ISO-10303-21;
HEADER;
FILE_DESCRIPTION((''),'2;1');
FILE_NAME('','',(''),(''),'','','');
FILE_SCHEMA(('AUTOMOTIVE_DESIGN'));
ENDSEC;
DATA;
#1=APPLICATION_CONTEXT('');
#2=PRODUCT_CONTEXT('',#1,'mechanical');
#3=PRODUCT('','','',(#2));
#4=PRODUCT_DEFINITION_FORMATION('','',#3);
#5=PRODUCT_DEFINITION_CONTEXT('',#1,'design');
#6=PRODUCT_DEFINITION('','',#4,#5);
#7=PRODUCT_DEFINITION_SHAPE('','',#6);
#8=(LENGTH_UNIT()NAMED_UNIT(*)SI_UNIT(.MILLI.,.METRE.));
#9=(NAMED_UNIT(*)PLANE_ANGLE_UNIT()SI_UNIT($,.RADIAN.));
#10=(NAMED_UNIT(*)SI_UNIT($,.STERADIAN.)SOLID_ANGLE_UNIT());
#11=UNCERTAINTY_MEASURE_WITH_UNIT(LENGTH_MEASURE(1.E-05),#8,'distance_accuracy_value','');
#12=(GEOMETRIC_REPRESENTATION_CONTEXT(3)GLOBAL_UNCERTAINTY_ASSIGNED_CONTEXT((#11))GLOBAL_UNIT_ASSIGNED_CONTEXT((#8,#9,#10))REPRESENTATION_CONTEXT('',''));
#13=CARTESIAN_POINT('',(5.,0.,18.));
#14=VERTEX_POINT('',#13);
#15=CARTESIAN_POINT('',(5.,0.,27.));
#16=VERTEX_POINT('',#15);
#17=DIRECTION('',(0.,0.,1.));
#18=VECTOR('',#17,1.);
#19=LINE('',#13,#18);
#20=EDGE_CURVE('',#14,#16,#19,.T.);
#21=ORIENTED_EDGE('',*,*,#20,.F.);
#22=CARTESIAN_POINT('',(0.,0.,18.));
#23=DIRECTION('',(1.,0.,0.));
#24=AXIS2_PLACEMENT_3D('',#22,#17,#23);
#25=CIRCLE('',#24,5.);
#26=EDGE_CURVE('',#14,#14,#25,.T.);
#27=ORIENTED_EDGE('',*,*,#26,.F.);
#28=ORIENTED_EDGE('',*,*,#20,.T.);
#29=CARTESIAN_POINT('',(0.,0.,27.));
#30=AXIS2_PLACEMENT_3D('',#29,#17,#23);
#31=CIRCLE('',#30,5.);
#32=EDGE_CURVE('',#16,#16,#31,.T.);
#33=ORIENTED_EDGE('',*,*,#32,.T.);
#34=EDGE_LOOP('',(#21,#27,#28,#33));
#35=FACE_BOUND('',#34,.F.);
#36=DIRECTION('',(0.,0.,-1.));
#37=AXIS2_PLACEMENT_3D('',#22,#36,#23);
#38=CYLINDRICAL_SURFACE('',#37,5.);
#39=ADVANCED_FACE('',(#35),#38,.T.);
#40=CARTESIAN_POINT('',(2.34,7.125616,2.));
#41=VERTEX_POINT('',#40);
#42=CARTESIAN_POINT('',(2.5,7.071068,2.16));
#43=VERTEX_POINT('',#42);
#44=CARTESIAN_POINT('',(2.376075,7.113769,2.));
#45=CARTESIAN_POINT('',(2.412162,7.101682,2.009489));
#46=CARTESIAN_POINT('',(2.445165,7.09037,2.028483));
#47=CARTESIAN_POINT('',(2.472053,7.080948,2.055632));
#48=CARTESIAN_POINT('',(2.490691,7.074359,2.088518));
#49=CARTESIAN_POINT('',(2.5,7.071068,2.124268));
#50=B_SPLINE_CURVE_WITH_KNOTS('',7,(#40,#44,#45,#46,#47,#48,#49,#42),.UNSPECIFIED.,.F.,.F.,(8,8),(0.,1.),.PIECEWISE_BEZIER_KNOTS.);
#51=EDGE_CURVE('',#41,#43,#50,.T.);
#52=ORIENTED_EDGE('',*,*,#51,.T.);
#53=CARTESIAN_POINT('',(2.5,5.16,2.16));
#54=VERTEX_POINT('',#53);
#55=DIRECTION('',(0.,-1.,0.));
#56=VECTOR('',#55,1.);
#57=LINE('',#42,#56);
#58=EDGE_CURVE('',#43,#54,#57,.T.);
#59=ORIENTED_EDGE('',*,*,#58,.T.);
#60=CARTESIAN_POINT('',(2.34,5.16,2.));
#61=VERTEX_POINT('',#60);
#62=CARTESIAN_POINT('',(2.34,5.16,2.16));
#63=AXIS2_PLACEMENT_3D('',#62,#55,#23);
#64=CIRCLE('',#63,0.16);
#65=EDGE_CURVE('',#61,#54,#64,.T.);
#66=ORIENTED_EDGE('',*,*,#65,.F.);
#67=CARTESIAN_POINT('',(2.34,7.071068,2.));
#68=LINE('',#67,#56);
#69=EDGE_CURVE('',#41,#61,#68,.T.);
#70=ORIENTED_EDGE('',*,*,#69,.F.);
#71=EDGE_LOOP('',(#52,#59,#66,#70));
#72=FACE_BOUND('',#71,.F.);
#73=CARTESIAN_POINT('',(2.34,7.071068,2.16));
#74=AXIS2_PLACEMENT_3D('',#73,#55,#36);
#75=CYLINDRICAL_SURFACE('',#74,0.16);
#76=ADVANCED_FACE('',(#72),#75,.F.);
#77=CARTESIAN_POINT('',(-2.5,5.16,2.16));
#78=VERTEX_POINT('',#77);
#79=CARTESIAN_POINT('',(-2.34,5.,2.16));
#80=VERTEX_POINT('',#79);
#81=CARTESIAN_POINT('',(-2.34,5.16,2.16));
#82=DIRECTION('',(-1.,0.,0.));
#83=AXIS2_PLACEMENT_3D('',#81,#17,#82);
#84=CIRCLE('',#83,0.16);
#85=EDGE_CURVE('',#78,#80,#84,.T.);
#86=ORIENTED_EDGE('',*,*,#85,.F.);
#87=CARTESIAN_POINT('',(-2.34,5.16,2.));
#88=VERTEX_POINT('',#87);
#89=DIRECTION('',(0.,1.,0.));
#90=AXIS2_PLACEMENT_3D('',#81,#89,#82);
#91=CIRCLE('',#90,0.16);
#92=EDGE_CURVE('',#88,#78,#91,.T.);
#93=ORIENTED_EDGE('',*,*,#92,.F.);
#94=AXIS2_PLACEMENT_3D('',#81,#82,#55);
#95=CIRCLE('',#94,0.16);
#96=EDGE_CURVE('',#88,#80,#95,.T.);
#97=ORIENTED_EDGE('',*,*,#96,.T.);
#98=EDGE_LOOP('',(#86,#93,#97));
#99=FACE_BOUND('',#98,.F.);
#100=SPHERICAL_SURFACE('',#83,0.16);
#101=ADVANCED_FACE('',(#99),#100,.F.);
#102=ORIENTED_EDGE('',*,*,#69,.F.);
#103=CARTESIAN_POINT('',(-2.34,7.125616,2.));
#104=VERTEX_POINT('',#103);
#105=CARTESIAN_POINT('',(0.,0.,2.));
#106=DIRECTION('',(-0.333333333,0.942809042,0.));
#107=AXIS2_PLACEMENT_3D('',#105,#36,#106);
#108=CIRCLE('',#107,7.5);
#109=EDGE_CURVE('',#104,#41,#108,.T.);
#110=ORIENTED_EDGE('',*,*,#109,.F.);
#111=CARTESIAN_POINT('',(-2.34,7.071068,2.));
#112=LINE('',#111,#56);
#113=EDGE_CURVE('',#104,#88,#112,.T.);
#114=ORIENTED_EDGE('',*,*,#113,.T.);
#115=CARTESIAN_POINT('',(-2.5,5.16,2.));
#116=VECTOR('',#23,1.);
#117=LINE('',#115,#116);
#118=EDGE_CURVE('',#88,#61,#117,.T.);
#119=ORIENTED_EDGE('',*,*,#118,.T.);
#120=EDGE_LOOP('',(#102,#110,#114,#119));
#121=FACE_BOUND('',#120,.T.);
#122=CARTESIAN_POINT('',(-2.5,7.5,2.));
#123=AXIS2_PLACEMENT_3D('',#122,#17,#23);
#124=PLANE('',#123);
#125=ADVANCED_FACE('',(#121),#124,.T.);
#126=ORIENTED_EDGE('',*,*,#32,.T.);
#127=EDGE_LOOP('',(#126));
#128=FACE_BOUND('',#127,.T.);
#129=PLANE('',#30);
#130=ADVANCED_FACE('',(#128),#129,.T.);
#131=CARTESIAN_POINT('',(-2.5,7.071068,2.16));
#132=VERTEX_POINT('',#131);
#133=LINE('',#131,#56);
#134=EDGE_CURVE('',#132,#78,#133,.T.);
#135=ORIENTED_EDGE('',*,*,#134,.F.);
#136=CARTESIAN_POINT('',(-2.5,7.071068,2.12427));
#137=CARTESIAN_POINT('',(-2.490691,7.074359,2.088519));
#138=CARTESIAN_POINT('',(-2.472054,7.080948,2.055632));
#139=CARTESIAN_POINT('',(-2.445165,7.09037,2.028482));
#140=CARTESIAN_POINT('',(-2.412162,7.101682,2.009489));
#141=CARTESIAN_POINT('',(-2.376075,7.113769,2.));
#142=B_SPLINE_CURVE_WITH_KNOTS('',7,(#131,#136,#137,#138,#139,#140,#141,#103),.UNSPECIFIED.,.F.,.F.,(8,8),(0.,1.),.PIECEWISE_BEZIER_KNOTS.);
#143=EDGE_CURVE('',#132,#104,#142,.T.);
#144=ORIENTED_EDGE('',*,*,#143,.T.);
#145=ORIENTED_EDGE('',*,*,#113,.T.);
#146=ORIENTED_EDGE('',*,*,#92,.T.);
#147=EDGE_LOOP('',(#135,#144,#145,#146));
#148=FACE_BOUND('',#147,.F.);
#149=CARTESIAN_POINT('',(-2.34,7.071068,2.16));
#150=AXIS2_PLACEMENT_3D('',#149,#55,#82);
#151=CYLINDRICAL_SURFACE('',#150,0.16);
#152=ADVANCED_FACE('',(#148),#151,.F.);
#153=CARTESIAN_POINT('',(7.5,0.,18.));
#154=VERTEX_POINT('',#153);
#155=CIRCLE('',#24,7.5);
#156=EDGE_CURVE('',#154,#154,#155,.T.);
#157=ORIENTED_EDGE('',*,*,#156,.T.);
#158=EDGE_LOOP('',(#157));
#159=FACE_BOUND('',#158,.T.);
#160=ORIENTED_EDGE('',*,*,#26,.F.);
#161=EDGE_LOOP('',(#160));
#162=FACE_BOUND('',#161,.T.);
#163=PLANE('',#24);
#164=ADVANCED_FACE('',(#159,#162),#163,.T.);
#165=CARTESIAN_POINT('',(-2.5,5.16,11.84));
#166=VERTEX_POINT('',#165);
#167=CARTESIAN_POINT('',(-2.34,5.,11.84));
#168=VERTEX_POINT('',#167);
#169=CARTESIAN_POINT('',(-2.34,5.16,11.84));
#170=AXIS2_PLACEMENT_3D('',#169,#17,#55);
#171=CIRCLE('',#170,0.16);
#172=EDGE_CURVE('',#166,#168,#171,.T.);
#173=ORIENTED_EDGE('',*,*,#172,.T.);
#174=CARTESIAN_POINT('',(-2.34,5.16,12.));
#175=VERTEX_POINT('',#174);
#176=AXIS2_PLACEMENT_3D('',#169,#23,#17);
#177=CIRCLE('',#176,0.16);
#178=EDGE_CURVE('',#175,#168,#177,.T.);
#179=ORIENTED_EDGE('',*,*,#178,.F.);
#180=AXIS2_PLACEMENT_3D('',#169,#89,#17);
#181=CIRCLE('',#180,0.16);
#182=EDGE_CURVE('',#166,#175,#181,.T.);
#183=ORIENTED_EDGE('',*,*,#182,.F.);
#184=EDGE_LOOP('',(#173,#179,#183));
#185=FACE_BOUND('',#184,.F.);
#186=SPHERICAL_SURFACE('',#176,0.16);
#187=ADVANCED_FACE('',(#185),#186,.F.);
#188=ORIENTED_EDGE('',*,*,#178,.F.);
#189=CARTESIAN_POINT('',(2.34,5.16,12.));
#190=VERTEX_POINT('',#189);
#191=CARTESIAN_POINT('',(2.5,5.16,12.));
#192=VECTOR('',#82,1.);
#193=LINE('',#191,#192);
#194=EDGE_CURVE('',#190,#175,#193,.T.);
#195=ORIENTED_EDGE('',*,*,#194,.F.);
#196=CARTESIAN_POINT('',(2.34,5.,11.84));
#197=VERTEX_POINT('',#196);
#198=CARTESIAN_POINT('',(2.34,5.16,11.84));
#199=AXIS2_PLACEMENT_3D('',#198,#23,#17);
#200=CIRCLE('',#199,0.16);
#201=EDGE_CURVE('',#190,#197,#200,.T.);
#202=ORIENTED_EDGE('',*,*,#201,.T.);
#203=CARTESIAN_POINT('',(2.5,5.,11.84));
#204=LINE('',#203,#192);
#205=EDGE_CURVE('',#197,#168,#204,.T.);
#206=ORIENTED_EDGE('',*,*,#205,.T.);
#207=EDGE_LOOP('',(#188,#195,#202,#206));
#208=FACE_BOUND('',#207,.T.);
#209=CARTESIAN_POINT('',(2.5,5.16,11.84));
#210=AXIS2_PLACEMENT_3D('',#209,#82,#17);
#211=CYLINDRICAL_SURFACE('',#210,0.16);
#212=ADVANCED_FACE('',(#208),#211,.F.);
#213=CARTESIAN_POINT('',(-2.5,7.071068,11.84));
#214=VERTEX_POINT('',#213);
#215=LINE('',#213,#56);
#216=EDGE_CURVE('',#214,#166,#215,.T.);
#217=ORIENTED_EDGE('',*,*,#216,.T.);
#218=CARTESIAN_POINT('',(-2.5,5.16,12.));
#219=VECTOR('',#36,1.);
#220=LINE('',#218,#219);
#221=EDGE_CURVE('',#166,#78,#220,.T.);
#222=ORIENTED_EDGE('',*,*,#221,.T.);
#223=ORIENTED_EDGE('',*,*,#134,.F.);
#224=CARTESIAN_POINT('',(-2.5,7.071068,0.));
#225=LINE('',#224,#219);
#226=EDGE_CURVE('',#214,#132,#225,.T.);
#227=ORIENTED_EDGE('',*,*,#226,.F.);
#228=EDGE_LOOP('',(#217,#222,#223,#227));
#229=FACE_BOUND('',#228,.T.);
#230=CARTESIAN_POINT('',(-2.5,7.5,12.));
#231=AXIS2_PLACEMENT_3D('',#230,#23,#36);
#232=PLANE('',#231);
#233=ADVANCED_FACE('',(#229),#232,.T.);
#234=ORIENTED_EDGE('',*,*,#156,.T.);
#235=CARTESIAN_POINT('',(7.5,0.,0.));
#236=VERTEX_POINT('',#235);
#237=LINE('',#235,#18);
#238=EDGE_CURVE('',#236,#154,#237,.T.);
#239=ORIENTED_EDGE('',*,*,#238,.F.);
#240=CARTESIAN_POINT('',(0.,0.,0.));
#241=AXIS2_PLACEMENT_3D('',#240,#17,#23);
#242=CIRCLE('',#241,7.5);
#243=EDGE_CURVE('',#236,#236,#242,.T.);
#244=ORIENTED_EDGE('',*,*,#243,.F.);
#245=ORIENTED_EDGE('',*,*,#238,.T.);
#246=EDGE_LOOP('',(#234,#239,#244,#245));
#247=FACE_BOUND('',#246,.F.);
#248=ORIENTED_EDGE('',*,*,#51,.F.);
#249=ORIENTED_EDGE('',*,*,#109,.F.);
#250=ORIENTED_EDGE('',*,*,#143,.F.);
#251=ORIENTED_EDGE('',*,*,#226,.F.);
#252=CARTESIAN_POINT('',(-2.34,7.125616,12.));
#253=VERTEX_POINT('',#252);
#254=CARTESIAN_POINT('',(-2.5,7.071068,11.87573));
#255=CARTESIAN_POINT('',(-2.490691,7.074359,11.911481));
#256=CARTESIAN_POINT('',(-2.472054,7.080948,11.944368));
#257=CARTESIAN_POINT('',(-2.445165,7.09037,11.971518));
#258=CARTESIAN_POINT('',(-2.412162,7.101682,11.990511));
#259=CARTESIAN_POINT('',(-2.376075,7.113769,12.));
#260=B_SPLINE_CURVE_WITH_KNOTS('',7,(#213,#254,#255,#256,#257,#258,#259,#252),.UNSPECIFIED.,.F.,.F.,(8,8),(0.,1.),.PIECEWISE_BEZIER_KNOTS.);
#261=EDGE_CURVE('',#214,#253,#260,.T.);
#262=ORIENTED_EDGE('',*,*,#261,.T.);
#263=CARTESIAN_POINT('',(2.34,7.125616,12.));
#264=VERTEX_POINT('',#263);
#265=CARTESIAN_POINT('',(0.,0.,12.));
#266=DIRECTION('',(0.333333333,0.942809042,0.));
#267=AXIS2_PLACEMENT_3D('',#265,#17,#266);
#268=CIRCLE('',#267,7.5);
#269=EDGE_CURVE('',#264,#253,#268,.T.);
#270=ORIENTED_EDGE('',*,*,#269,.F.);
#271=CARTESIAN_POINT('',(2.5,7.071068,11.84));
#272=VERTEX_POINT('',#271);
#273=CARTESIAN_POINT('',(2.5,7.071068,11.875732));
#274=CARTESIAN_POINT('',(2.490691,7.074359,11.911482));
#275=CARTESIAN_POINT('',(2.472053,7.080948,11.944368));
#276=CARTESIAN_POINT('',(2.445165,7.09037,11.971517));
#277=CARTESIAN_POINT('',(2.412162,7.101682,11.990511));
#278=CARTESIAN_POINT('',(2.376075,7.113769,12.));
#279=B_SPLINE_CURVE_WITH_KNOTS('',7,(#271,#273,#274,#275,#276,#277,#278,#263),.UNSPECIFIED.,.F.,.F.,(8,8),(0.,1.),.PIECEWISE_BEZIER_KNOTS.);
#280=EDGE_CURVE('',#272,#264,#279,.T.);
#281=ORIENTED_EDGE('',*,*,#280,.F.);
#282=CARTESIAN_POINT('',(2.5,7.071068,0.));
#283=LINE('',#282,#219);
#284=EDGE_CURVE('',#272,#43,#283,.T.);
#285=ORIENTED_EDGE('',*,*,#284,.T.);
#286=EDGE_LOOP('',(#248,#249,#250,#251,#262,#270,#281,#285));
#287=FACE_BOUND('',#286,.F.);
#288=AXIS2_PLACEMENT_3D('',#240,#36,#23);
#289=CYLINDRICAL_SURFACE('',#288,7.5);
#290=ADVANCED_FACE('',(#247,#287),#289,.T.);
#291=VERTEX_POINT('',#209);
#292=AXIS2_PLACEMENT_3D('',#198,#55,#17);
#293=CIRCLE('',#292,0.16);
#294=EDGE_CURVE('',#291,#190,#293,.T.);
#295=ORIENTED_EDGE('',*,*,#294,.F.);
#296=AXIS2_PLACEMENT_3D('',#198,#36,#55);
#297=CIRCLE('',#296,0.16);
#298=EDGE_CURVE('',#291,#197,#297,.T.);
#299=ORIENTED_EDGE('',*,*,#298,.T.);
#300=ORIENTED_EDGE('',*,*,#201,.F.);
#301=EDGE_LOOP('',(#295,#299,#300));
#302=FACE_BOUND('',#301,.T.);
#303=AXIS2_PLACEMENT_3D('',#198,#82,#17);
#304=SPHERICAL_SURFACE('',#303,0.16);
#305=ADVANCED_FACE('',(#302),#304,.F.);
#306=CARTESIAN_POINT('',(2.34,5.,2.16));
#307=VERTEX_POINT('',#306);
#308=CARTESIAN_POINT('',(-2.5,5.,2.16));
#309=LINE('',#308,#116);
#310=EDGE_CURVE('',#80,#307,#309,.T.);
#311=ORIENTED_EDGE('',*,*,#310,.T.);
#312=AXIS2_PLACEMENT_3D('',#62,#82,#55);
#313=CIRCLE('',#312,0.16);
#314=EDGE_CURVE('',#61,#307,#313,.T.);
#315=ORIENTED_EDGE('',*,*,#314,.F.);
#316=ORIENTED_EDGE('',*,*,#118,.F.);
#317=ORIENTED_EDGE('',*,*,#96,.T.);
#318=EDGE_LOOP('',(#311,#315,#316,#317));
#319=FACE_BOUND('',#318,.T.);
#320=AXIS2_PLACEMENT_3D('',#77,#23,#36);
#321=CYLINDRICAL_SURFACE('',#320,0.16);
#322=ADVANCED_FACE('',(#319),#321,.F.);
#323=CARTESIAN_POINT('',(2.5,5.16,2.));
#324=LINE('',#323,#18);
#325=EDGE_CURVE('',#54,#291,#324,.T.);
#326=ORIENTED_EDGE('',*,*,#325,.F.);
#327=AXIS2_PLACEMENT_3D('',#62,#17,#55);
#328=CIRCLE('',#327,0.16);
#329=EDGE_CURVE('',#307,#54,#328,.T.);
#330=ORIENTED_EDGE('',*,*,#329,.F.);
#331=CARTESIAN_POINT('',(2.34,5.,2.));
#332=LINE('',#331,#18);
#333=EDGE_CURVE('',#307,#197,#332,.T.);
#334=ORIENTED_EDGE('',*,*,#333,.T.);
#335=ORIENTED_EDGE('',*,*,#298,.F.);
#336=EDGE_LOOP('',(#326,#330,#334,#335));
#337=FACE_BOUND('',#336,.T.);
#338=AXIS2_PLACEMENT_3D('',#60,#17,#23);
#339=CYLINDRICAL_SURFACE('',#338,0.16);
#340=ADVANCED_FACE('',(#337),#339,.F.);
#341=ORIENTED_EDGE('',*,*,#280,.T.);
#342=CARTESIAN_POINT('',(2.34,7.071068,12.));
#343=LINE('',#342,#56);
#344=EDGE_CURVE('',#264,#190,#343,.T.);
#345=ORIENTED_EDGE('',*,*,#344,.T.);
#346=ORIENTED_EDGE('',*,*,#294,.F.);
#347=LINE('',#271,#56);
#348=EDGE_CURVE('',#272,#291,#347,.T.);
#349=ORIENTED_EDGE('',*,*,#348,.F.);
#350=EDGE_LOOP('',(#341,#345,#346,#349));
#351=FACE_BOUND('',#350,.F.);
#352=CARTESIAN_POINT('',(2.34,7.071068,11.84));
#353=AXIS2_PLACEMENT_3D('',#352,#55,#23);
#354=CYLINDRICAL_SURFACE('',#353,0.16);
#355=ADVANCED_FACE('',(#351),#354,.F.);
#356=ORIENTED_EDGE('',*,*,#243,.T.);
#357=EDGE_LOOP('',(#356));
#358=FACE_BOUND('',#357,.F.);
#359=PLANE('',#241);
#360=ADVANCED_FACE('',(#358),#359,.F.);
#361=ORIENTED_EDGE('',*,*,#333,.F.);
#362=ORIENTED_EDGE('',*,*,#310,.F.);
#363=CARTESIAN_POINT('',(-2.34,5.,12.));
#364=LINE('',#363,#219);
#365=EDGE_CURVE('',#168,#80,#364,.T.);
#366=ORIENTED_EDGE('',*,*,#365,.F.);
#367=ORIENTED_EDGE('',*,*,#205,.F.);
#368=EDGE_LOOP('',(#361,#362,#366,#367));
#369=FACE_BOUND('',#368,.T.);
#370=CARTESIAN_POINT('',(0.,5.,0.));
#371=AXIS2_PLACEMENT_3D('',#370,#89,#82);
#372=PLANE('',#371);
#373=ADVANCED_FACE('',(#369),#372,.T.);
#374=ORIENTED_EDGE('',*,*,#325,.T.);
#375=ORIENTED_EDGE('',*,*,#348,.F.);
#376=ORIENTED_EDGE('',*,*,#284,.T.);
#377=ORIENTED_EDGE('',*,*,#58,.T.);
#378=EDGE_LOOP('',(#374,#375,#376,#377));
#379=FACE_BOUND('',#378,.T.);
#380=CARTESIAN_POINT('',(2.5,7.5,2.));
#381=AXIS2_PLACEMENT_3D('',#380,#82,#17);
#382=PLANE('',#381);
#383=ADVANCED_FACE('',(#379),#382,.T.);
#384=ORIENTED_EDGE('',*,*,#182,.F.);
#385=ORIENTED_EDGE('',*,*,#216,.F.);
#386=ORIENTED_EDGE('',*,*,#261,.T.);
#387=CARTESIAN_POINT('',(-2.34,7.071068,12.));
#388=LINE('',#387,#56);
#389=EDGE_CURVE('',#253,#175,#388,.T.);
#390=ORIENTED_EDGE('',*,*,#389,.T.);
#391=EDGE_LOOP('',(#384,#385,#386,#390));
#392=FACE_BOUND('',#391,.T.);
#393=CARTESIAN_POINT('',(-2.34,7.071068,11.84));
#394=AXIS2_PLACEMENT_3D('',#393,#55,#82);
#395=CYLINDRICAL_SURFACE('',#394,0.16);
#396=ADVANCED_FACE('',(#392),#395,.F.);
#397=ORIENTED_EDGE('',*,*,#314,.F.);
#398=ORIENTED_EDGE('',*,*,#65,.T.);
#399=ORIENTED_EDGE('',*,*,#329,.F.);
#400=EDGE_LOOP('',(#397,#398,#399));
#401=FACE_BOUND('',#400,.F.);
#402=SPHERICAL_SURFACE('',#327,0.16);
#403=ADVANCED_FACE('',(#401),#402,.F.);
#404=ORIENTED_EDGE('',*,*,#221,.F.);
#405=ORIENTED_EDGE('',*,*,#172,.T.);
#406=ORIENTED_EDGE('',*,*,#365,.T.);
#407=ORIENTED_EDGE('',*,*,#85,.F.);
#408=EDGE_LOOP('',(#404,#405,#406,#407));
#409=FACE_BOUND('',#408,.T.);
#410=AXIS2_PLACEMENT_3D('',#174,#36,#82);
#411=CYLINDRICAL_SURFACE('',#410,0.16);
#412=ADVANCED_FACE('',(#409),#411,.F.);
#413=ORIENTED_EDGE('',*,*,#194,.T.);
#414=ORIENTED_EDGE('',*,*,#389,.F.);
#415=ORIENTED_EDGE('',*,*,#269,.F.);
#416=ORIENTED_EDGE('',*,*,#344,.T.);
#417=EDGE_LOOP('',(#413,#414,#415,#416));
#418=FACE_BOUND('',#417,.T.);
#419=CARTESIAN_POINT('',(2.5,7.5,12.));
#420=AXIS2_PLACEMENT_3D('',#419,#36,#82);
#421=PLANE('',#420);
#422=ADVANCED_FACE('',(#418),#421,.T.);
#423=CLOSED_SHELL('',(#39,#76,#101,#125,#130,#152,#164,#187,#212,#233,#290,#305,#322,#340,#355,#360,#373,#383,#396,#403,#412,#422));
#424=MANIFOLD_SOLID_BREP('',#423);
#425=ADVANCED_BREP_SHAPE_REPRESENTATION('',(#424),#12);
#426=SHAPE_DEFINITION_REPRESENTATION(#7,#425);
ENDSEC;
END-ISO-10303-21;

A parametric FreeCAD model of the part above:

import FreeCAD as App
import Part
import Sketcher


def edges_at(feature, points):
    """Names of the edges that pass closest to the given points."""
    edges = feature.Shape.Edges
    near = lambda p: min(range(len(edges)), key=lambda i: edges[i].distToShape(Part.Vertex(*p))[0])
    return sorted({f"Edge{near(p) + 1}" for p in points})

doc = App.newDocument("Part")
body = doc.addObject("PartDesign::Body", "Body")

# Sketch on XY plane
sketch1 = doc.addObject("Sketcher::SketchObject", "Sketch")
body.addObject(sketch1)
sketch1.AttachmentSupport = (doc.XY_Plane, [""])
sketch1.MapMode = "FlatFace"
sketch1.addGeometry(Part.Circle(App.Vector(0, 0, 0), App.Vector(0, 0, 1), 7.5), False)
sketch1.addConstraint(Sketcher.Constraint("Coincident", 0, 3, -1, 1))
sketch1.addConstraint(Sketcher.Constraint("Diameter", 0, 15.0))
pad1 = doc.addObject("PartDesign::Pad", "Pad")
body.addObject(pad1)
pad1.Profile = sketch1
pad1.Length = 18

# Sketch on XY plane
sketch2 = doc.addObject("Sketcher::SketchObject", "Sketch001")
body.addObject(sketch2)
sketch2.AttachmentSupport = (doc.XY_Plane, [""])
sketch2.MapMode = "FlatFace"
sketch2.AttachmentOffset = App.Placement(App.Vector(0, 0, 18), App.Rotation())
sketch2.addGeometry(Part.Circle(App.Vector(0, 0, 0), App.Vector(0, 0, 1), 5), False)
sketch2.addConstraint(Sketcher.Constraint("Coincident", 0, 3, -1, 1))
sketch2.addConstraint(Sketcher.Constraint("Diameter", 0, 10.0))
pad2 = doc.addObject("PartDesign::Pad", "Pad001")
body.addObject(pad2)
pad2.Profile = sketch2
pad2.Length = 9

# Sketch on XZ plane
sketch3 = doc.addObject("Sketcher::SketchObject", "Sketch002")
body.addObject(sketch3)
sketch3.AttachmentSupport = (doc.XZ_Plane, [""])
sketch3.MapMode = "FlatFace"
sketch3.AttachmentOffset = App.Placement(App.Vector(0, 0, -7.5), App.Rotation())
sketch3.addGeometry(Part.LineSegment(App.Vector(-2.5, 12, 0), App.Vector(2.5, 12, 0)), False)
sketch3.addGeometry(Part.LineSegment(App.Vector(2.5, 12, 0), App.Vector(2.5, 2, 0)), False)
sketch3.addGeometry(Part.LineSegment(App.Vector(2.5, 2, 0), App.Vector(-2.5, 2, 0)), False)
sketch3.addGeometry(Part.LineSegment(App.Vector(-2.5, 2, 0), App.Vector(-2.5, 12, 0)), False)
sketch3.addConstraint(Sketcher.Constraint("Coincident", 0, 2, 1, 1))
sketch3.addConstraint(Sketcher.Constraint("Coincident", 1, 2, 2, 1))
sketch3.addConstraint(Sketcher.Constraint("Coincident", 2, 2, 3, 1))
sketch3.addConstraint(Sketcher.Constraint("Coincident", 3, 2, 0, 1))
sketch3.addConstraint(Sketcher.Constraint("Horizontal", 0))
sketch3.addConstraint(Sketcher.Constraint("Vertical", 1))
sketch3.addConstraint(Sketcher.Constraint("Horizontal", 2))
sketch3.addConstraint(Sketcher.Constraint("Vertical", 3))
sketch3.addConstraint(Sketcher.Constraint("DistanceX", 0, 1, 0, 2, 5.0))
sketch3.addConstraint(Sketcher.Constraint("DistanceY", 1, 2, 1, 1, 10.0))
sketch3.addConstraint(Sketcher.Constraint("DistanceY", -1, 1, 1, 2, 2.0))
sketch3.addConstraint(Sketcher.Constraint("DistanceX", -1, 1, 0, 2, 2.5))
pocket1 = doc.addObject("PartDesign::Pocket", "Pocket")
body.addObject(pocket1)
pocket1.Profile = sketch3
pocket1.Length = 2.5
pocket1.Reversed = True
doc.recompute()

fillet = doc.addObject("PartDesign::Fillet", "Fillet")
body.addObject(fillet)
fillet.Base = (pocket1, edges_at(pocket1, [
    (0, 5, 12),
    (2.5, 6.035, 12),
    (2.5, 5, 7),
    (-2.5, 6.035, 12),
    (-2.5, 5, 7),
    (-2.5, 6.035, 2),
    (0, 5, 2),
    (2.5, 6.035, 2),
]))
fillet.Radius = 0.16

doc.recompute()
